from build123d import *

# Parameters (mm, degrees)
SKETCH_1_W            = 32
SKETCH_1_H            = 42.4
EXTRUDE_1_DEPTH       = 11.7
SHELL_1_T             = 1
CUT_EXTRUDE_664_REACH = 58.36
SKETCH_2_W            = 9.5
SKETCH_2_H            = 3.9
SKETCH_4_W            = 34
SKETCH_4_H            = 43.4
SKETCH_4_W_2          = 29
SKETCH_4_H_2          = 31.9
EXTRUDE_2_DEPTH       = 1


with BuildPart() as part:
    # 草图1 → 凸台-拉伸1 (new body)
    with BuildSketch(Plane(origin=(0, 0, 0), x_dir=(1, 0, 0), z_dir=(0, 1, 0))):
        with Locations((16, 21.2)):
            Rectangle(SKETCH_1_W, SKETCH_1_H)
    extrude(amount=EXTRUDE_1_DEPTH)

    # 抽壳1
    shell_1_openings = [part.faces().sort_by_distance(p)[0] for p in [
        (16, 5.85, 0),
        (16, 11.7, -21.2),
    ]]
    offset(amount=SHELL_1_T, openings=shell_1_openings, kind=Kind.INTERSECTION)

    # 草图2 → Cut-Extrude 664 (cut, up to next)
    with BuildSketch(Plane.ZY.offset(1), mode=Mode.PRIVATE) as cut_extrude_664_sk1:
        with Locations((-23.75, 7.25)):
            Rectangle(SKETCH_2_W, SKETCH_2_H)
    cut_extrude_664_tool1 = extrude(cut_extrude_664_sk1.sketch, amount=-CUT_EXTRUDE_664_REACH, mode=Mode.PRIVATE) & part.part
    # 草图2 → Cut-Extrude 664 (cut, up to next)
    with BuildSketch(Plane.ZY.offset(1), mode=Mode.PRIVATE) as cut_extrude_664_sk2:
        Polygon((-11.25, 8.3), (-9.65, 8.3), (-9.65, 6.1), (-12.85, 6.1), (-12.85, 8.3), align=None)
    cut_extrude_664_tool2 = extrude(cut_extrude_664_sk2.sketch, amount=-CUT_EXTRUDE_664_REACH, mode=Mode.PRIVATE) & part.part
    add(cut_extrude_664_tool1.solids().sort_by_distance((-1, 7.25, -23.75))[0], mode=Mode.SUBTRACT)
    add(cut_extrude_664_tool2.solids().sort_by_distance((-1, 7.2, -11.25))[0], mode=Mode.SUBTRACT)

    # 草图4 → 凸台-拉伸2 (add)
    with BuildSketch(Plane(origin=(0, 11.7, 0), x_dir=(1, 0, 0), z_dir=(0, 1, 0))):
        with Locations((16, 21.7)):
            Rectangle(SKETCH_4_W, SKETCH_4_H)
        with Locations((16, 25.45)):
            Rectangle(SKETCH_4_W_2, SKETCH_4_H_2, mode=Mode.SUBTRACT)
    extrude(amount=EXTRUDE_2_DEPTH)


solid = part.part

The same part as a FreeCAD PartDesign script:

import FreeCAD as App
import Part
import Sketcher


def faces_at(feature, points):
    """Names of the faces that lie closest to the given points."""
    faces = feature.Shape.Faces
    near = lambda p: min(range(len(faces)), key=lambda i: faces[i].distToShape(Part.Vertex(*p))[0])
    return sorted({f"Face{near(p) + 1}" for p in points})

doc = App.newDocument("Part")
body = doc.addObject("PartDesign::Body", "Body")

sketch1 = body.newObject("Sketcher::SketchObject", "Sketch")
sketch1.AttachmentSupport = (doc.getObject("XZ_Plane"), [""])
sketch1.MapMode = "FlatFace"
sketch1.addGeometry(Part.LineSegment(App.Vector(0, -42, 0), App.Vector(0, 0, 0)), False)
sketch1.addGeometry(Part.LineSegment(App.Vector(0, 0, 0), App.Vector(32, 0, 0)), False)
sketch1.addGeometry(Part.LineSegment(App.Vector(32, 0, 0), App.Vector(32, -42, 0)), False)
sketch1.addGeometry(Part.LineSegment(App.Vector(32, -42, 0), App.Vector(0, -42, 0)), False)
sketch1.addConstraint(Sketcher.Constraint("Coincident", 0, 2, 1, 1))
sketch1.addConstraint(Sketcher.Constraint("Coincident", 1, 2, 2, 1))
sketch1.addConstraint(Sketcher.Constraint("Coincident", 2, 2, 3, 1))
sketch1.addConstraint(Sketcher.Constraint("Coincident", 3, 2, 0, 1))
sketch1.addConstraint(Sketcher.Constraint("Vertical", 0))
sketch1.addConstraint(Sketcher.Constraint("Horizontal", 1))
sketch1.addConstraint(Sketcher.Constraint("Vertical", 2))
sketch1.addConstraint(Sketcher.Constraint("Horizontal", 3))
sketch1.addConstraint(Sketcher.Constraint("Coincident", 0, 2, -1, 1))
sketch1.addConstraint(Sketcher.Constraint("DistanceX", 1, 1, 1, 2, 32.0))
sketch1.addConstraint(Sketcher.Constraint("DistanceY", 0, 1, 0, 2, 42.4))
pad1 = body.newObject("PartDesign::Pad", "Pad")
pad1.Profile = sketch1
pad1.Length = 11.7
pad1.Reversed = True
doc.recompute()

thickness = body.newObject("PartDesign::Thickness", "Thickness")
thickness.Base = (pad1, faces_at(pad1, [(16, 5.85, 0), (16, 11.7, -21.2)]))
thickness.Value = 1
thickness.Reversed = False
thickness.Join = "Intersection"

sketch2 = body.newObject("Sketcher::SketchObject", "Sketch001")
sketch2.AttachmentSupport = (doc.getObject("YZ_Plane"), [""])
sketch2.MapMode = "FlatFace"
sketch2.AttachmentOffset = App.Placement(App.Vector(0, 0, -1), App.Rotation())
sketch2.addGeometry(Part.LineSegment(App.Vector(9.2, -28.5, 0), App.Vector(5.3, -28.5, 0)), False)
sketch2.addGeometry(Part.LineSegment(App.Vector(5.3, -28.5, 0), App.Vector(5.3, -19, 0)), False)
sketch2.addGeometry(Part.LineSegment(App.Vector(5.3, -19, 0), App.Vector(9.2, -19, 0)), False)
sketch2.addGeometry(Part.LineSegment(App.Vector(9.2, -19, 0), App.Vector(9.2, -28.5, 0)), False)
sketch2.addConstraint(Sketcher.Constraint("Coincident", 0, 2, 1, 1))
sketch2.addConstraint(Sketcher.Constraint("Coincident", 1, 2, 2, 1))
sketch2.addConstraint(Sketcher.Constraint("Coincident", 2, 2, 3, 1))
sketch2.addConstraint(Sketcher.Constraint("Coincident", 3, 2, 0, 1))
sketch2.addConstraint(Sketcher.Constraint("Horizontal", 0))
sketch2.addConstraint(Sketcher.Constraint("Vertical", 1))
sketch2.addConstraint(Sketcher.Constraint("Horizontal", 2))
sketch2.addConstraint(Sketcher.Constraint("Vertical", 3))
sketch2.addConstraint(Sketcher.Constraint("DistanceX", 0, 2, 0, 1, 3.9))
sketch2.addConstraint(Sketcher.Constraint("DistanceY", 1, 1, 1, 2, 9.5))
sketch2.addConstraint(Sketcher.Constraint("DistanceY", 1, 2, -1, 1, 19.0))
sketch2.addConstraint(Sketcher.Constraint("DistanceX", -1, 1, 0, 2, 5.3))
pocket1 = body.newObject("PartDesign::Pocket", "Pocket")
pocket1.Profile = sketch2
pocket1.Type = "UpToFirst"
pocket1.Reversed = True

sketch3 = body.newObject("Sketcher::SketchObject", "Sketch002")
sketch3.AttachmentSupport = (doc.getObject("YZ_Plane"), [""])
sketch3.MapMode = "FlatFace"
sketch3.AttachmentOffset = App.Placement(App.Vector(0, 0, -1), App.Rotation())
sketch3.addGeometry(Part.LineSegment(App.Vector(8.3, -9.7, 0), App.Vector(8.3, -12.8, 0)), False)
sketch3.addGeometry(Part.LineSegment(App.Vector(8.3, -12.8, 0), App.Vector(6.1, -12.8, 0)), False)
sketch3.addGeometry(Part.LineSegment(App.Vector(6.1, -12.8, 0), App.Vector(6.1, -9.7, 0)), False)
sketch3.addGeometry(Part.LineSegment(App.Vector(6.1, -9.7, 0), App.Vector(8.3, -9.7, 0)), False)
sketch3.addConstraint(Sketcher.Constraint("Coincident", 0, 2, 1, 1))
sketch3.addConstraint(Sketcher.Constraint("Coincident", 1, 2, 2, 1))
sketch3.addConstraint(Sketcher.Constraint("Coincident", 2, 2, 3, 1))
sketch3.addConstraint(Sketcher.Constraint("Coincident", 3, 2, 0, 1))
sketch3.addConstraint(Sketcher.Constraint("Vertical", 0))
sketch3.addConstraint(Sketcher.Constraint("Horizontal", 1))
sketch3.addConstraint(Sketcher.Constraint("Vertical", 2))
sketch3.addConstraint(Sketcher.Constraint("Horizontal", 3))
sketch3.addConstraint(Sketcher.Constraint("DistanceX", 1, 2, 1, 1, 2.2))
sketch3.addConstraint(Sketcher.Constraint("DistanceY", 0, 2, 0, 1, 3.2))
sketch3.addConstraint(Sketcher.Constraint("DistanceX", -1, 1, 0, 2, 8.3))
sketch3.addConstraint(Sketcher.Constraint("DistanceY", 0, 2, -1, 1, 12.85))
pocket2 = body.newObject("PartDesign::Pocket", "Pocket001")
pocket2.Profile = sketch3
pocket2.Type = "UpToFirst"
pocket2.Reversed = True

sketch4 = body.newObject("Sketcher::SketchObject", "Sketch003")
sketch4.AttachmentSupport = (doc.getObject("XZ_Plane"), [""])
sketch4.MapMode = "FlatFace"
sketch4.AttachmentOffset = App.Placement(App.Vector(0, 0, -11.7), App.Rotation())
sketch4.addGeometry(Part.LineSegment(App.Vector(-1, -43, 0), App.Vector(-1, 0, 0)), False)
sketch4.addGeometry(Part.LineSegment(App.Vector(-1, 0, 0), App.Vector(33, 0, 0)), False)
sketch4.addGeometry(Part.LineSegment(App.Vector(33, 0, 0), App.Vector(33, -43, 0)), False)
sketch4.addGeometry(Part.LineSegment(App.Vector(33, -43, 0), App.Vector(-1, -43, 0)), False)
sketch4.addGeometry(Part.LineSegment(App.Vector(30, -10, 0), App.Vector(2, -10, 0)), False)
sketch4.addGeometry(Part.LineSegment(App.Vector(2, -10, 0), App.Vector(2, -41, 0)), False)
sketch4.addGeometry(Part.LineSegment(App.Vector(2, -41, 0), App.Vector(30, -41, 0)), False)
sketch4.addGeometry(Part.LineSegment(App.Vector(30, -41, 0), App.Vector(30, -10, 0)), False)
sketch4.addConstraint(Sketcher.Constraint("Coincident", 0, 2, 1, 1))
sketch4.addConstraint(Sketcher.Constraint("Coincident", 1, 2, 2, 1))
sketch4.addConstraint(Sketcher.Constraint("Coincident", 2, 2, 3, 1))
sketch4.addConstraint(Sketcher.Constraint("Coincident", 3, 2, 0, 1))
sketch4.addConstraint(Sketcher.Constraint("Coincident", 4, 2, 5, 1))
sketch4.addConstraint(Sketcher.Constraint("Coincident", 5, 2, 6, 1))
sketch4.addConstraint(Sketcher.Constraint("Coincident", 6, 2, 7, 1))
sketch4.addConstraint(Sketcher.Constraint("Coincident", 7, 2, 4, 1))
sketch4.addConstraint(Sketcher.Constraint("Vertical", 0))
sketch4.addConstraint(Sketcher.Constraint("Horizontal", 1))
sketch4.addConstraint(Sketcher.Constraint("Vertical", 2))
sketch4.addConstraint(Sketcher.Constraint("Horizontal", 3))
sketch4.addConstraint(Sketcher.Constraint("Horizontal", 4))
sketch4.addConstraint(Sketcher.Constraint("Vertical", 5))
sketch4.addConstraint(Sketcher.Constraint("Horizontal", 6))
sketch4.addConstraint(Sketcher.Constraint("Vertical", 7))
sketch4.addConstraint(Sketcher.Constraint("PointOnObject", 0, 2, -1))
sketch4.addConstraint(Sketcher.Constraint("DistanceX", 1, 1, 1, 2, 34.0))
sketch4.addConstraint(Sketcher.Constraint("DistanceX", 4, 2, 4, 1, 29.0))
sketch4.addConstraint(Sketcher.Constraint("DistanceY", 0, 1, 0, 2, 43.4))
sketch4.addConstraint(Sketcher.Constraint("DistanceY", 5, 2, 5, 1, 31.9))
sketch4.addConstraint(Sketcher.Constraint("DistanceX", 0, 2, -1, 1, 1.0))
sketch4.addConstraint(Sketcher.Constraint("DistanceY", 3, 2, 5, 2, 2.0))
sketch4.addConstraint(Sketcher.Constraint("DistanceX", -1, 1, 4, 2, 1.5))
pad2 = body.newObject("PartDesign::Pad", "Pad001")
pad2.Profile = sketch4
pad2.Length = 1
pad2.Reversed = True

doc.recompute()
